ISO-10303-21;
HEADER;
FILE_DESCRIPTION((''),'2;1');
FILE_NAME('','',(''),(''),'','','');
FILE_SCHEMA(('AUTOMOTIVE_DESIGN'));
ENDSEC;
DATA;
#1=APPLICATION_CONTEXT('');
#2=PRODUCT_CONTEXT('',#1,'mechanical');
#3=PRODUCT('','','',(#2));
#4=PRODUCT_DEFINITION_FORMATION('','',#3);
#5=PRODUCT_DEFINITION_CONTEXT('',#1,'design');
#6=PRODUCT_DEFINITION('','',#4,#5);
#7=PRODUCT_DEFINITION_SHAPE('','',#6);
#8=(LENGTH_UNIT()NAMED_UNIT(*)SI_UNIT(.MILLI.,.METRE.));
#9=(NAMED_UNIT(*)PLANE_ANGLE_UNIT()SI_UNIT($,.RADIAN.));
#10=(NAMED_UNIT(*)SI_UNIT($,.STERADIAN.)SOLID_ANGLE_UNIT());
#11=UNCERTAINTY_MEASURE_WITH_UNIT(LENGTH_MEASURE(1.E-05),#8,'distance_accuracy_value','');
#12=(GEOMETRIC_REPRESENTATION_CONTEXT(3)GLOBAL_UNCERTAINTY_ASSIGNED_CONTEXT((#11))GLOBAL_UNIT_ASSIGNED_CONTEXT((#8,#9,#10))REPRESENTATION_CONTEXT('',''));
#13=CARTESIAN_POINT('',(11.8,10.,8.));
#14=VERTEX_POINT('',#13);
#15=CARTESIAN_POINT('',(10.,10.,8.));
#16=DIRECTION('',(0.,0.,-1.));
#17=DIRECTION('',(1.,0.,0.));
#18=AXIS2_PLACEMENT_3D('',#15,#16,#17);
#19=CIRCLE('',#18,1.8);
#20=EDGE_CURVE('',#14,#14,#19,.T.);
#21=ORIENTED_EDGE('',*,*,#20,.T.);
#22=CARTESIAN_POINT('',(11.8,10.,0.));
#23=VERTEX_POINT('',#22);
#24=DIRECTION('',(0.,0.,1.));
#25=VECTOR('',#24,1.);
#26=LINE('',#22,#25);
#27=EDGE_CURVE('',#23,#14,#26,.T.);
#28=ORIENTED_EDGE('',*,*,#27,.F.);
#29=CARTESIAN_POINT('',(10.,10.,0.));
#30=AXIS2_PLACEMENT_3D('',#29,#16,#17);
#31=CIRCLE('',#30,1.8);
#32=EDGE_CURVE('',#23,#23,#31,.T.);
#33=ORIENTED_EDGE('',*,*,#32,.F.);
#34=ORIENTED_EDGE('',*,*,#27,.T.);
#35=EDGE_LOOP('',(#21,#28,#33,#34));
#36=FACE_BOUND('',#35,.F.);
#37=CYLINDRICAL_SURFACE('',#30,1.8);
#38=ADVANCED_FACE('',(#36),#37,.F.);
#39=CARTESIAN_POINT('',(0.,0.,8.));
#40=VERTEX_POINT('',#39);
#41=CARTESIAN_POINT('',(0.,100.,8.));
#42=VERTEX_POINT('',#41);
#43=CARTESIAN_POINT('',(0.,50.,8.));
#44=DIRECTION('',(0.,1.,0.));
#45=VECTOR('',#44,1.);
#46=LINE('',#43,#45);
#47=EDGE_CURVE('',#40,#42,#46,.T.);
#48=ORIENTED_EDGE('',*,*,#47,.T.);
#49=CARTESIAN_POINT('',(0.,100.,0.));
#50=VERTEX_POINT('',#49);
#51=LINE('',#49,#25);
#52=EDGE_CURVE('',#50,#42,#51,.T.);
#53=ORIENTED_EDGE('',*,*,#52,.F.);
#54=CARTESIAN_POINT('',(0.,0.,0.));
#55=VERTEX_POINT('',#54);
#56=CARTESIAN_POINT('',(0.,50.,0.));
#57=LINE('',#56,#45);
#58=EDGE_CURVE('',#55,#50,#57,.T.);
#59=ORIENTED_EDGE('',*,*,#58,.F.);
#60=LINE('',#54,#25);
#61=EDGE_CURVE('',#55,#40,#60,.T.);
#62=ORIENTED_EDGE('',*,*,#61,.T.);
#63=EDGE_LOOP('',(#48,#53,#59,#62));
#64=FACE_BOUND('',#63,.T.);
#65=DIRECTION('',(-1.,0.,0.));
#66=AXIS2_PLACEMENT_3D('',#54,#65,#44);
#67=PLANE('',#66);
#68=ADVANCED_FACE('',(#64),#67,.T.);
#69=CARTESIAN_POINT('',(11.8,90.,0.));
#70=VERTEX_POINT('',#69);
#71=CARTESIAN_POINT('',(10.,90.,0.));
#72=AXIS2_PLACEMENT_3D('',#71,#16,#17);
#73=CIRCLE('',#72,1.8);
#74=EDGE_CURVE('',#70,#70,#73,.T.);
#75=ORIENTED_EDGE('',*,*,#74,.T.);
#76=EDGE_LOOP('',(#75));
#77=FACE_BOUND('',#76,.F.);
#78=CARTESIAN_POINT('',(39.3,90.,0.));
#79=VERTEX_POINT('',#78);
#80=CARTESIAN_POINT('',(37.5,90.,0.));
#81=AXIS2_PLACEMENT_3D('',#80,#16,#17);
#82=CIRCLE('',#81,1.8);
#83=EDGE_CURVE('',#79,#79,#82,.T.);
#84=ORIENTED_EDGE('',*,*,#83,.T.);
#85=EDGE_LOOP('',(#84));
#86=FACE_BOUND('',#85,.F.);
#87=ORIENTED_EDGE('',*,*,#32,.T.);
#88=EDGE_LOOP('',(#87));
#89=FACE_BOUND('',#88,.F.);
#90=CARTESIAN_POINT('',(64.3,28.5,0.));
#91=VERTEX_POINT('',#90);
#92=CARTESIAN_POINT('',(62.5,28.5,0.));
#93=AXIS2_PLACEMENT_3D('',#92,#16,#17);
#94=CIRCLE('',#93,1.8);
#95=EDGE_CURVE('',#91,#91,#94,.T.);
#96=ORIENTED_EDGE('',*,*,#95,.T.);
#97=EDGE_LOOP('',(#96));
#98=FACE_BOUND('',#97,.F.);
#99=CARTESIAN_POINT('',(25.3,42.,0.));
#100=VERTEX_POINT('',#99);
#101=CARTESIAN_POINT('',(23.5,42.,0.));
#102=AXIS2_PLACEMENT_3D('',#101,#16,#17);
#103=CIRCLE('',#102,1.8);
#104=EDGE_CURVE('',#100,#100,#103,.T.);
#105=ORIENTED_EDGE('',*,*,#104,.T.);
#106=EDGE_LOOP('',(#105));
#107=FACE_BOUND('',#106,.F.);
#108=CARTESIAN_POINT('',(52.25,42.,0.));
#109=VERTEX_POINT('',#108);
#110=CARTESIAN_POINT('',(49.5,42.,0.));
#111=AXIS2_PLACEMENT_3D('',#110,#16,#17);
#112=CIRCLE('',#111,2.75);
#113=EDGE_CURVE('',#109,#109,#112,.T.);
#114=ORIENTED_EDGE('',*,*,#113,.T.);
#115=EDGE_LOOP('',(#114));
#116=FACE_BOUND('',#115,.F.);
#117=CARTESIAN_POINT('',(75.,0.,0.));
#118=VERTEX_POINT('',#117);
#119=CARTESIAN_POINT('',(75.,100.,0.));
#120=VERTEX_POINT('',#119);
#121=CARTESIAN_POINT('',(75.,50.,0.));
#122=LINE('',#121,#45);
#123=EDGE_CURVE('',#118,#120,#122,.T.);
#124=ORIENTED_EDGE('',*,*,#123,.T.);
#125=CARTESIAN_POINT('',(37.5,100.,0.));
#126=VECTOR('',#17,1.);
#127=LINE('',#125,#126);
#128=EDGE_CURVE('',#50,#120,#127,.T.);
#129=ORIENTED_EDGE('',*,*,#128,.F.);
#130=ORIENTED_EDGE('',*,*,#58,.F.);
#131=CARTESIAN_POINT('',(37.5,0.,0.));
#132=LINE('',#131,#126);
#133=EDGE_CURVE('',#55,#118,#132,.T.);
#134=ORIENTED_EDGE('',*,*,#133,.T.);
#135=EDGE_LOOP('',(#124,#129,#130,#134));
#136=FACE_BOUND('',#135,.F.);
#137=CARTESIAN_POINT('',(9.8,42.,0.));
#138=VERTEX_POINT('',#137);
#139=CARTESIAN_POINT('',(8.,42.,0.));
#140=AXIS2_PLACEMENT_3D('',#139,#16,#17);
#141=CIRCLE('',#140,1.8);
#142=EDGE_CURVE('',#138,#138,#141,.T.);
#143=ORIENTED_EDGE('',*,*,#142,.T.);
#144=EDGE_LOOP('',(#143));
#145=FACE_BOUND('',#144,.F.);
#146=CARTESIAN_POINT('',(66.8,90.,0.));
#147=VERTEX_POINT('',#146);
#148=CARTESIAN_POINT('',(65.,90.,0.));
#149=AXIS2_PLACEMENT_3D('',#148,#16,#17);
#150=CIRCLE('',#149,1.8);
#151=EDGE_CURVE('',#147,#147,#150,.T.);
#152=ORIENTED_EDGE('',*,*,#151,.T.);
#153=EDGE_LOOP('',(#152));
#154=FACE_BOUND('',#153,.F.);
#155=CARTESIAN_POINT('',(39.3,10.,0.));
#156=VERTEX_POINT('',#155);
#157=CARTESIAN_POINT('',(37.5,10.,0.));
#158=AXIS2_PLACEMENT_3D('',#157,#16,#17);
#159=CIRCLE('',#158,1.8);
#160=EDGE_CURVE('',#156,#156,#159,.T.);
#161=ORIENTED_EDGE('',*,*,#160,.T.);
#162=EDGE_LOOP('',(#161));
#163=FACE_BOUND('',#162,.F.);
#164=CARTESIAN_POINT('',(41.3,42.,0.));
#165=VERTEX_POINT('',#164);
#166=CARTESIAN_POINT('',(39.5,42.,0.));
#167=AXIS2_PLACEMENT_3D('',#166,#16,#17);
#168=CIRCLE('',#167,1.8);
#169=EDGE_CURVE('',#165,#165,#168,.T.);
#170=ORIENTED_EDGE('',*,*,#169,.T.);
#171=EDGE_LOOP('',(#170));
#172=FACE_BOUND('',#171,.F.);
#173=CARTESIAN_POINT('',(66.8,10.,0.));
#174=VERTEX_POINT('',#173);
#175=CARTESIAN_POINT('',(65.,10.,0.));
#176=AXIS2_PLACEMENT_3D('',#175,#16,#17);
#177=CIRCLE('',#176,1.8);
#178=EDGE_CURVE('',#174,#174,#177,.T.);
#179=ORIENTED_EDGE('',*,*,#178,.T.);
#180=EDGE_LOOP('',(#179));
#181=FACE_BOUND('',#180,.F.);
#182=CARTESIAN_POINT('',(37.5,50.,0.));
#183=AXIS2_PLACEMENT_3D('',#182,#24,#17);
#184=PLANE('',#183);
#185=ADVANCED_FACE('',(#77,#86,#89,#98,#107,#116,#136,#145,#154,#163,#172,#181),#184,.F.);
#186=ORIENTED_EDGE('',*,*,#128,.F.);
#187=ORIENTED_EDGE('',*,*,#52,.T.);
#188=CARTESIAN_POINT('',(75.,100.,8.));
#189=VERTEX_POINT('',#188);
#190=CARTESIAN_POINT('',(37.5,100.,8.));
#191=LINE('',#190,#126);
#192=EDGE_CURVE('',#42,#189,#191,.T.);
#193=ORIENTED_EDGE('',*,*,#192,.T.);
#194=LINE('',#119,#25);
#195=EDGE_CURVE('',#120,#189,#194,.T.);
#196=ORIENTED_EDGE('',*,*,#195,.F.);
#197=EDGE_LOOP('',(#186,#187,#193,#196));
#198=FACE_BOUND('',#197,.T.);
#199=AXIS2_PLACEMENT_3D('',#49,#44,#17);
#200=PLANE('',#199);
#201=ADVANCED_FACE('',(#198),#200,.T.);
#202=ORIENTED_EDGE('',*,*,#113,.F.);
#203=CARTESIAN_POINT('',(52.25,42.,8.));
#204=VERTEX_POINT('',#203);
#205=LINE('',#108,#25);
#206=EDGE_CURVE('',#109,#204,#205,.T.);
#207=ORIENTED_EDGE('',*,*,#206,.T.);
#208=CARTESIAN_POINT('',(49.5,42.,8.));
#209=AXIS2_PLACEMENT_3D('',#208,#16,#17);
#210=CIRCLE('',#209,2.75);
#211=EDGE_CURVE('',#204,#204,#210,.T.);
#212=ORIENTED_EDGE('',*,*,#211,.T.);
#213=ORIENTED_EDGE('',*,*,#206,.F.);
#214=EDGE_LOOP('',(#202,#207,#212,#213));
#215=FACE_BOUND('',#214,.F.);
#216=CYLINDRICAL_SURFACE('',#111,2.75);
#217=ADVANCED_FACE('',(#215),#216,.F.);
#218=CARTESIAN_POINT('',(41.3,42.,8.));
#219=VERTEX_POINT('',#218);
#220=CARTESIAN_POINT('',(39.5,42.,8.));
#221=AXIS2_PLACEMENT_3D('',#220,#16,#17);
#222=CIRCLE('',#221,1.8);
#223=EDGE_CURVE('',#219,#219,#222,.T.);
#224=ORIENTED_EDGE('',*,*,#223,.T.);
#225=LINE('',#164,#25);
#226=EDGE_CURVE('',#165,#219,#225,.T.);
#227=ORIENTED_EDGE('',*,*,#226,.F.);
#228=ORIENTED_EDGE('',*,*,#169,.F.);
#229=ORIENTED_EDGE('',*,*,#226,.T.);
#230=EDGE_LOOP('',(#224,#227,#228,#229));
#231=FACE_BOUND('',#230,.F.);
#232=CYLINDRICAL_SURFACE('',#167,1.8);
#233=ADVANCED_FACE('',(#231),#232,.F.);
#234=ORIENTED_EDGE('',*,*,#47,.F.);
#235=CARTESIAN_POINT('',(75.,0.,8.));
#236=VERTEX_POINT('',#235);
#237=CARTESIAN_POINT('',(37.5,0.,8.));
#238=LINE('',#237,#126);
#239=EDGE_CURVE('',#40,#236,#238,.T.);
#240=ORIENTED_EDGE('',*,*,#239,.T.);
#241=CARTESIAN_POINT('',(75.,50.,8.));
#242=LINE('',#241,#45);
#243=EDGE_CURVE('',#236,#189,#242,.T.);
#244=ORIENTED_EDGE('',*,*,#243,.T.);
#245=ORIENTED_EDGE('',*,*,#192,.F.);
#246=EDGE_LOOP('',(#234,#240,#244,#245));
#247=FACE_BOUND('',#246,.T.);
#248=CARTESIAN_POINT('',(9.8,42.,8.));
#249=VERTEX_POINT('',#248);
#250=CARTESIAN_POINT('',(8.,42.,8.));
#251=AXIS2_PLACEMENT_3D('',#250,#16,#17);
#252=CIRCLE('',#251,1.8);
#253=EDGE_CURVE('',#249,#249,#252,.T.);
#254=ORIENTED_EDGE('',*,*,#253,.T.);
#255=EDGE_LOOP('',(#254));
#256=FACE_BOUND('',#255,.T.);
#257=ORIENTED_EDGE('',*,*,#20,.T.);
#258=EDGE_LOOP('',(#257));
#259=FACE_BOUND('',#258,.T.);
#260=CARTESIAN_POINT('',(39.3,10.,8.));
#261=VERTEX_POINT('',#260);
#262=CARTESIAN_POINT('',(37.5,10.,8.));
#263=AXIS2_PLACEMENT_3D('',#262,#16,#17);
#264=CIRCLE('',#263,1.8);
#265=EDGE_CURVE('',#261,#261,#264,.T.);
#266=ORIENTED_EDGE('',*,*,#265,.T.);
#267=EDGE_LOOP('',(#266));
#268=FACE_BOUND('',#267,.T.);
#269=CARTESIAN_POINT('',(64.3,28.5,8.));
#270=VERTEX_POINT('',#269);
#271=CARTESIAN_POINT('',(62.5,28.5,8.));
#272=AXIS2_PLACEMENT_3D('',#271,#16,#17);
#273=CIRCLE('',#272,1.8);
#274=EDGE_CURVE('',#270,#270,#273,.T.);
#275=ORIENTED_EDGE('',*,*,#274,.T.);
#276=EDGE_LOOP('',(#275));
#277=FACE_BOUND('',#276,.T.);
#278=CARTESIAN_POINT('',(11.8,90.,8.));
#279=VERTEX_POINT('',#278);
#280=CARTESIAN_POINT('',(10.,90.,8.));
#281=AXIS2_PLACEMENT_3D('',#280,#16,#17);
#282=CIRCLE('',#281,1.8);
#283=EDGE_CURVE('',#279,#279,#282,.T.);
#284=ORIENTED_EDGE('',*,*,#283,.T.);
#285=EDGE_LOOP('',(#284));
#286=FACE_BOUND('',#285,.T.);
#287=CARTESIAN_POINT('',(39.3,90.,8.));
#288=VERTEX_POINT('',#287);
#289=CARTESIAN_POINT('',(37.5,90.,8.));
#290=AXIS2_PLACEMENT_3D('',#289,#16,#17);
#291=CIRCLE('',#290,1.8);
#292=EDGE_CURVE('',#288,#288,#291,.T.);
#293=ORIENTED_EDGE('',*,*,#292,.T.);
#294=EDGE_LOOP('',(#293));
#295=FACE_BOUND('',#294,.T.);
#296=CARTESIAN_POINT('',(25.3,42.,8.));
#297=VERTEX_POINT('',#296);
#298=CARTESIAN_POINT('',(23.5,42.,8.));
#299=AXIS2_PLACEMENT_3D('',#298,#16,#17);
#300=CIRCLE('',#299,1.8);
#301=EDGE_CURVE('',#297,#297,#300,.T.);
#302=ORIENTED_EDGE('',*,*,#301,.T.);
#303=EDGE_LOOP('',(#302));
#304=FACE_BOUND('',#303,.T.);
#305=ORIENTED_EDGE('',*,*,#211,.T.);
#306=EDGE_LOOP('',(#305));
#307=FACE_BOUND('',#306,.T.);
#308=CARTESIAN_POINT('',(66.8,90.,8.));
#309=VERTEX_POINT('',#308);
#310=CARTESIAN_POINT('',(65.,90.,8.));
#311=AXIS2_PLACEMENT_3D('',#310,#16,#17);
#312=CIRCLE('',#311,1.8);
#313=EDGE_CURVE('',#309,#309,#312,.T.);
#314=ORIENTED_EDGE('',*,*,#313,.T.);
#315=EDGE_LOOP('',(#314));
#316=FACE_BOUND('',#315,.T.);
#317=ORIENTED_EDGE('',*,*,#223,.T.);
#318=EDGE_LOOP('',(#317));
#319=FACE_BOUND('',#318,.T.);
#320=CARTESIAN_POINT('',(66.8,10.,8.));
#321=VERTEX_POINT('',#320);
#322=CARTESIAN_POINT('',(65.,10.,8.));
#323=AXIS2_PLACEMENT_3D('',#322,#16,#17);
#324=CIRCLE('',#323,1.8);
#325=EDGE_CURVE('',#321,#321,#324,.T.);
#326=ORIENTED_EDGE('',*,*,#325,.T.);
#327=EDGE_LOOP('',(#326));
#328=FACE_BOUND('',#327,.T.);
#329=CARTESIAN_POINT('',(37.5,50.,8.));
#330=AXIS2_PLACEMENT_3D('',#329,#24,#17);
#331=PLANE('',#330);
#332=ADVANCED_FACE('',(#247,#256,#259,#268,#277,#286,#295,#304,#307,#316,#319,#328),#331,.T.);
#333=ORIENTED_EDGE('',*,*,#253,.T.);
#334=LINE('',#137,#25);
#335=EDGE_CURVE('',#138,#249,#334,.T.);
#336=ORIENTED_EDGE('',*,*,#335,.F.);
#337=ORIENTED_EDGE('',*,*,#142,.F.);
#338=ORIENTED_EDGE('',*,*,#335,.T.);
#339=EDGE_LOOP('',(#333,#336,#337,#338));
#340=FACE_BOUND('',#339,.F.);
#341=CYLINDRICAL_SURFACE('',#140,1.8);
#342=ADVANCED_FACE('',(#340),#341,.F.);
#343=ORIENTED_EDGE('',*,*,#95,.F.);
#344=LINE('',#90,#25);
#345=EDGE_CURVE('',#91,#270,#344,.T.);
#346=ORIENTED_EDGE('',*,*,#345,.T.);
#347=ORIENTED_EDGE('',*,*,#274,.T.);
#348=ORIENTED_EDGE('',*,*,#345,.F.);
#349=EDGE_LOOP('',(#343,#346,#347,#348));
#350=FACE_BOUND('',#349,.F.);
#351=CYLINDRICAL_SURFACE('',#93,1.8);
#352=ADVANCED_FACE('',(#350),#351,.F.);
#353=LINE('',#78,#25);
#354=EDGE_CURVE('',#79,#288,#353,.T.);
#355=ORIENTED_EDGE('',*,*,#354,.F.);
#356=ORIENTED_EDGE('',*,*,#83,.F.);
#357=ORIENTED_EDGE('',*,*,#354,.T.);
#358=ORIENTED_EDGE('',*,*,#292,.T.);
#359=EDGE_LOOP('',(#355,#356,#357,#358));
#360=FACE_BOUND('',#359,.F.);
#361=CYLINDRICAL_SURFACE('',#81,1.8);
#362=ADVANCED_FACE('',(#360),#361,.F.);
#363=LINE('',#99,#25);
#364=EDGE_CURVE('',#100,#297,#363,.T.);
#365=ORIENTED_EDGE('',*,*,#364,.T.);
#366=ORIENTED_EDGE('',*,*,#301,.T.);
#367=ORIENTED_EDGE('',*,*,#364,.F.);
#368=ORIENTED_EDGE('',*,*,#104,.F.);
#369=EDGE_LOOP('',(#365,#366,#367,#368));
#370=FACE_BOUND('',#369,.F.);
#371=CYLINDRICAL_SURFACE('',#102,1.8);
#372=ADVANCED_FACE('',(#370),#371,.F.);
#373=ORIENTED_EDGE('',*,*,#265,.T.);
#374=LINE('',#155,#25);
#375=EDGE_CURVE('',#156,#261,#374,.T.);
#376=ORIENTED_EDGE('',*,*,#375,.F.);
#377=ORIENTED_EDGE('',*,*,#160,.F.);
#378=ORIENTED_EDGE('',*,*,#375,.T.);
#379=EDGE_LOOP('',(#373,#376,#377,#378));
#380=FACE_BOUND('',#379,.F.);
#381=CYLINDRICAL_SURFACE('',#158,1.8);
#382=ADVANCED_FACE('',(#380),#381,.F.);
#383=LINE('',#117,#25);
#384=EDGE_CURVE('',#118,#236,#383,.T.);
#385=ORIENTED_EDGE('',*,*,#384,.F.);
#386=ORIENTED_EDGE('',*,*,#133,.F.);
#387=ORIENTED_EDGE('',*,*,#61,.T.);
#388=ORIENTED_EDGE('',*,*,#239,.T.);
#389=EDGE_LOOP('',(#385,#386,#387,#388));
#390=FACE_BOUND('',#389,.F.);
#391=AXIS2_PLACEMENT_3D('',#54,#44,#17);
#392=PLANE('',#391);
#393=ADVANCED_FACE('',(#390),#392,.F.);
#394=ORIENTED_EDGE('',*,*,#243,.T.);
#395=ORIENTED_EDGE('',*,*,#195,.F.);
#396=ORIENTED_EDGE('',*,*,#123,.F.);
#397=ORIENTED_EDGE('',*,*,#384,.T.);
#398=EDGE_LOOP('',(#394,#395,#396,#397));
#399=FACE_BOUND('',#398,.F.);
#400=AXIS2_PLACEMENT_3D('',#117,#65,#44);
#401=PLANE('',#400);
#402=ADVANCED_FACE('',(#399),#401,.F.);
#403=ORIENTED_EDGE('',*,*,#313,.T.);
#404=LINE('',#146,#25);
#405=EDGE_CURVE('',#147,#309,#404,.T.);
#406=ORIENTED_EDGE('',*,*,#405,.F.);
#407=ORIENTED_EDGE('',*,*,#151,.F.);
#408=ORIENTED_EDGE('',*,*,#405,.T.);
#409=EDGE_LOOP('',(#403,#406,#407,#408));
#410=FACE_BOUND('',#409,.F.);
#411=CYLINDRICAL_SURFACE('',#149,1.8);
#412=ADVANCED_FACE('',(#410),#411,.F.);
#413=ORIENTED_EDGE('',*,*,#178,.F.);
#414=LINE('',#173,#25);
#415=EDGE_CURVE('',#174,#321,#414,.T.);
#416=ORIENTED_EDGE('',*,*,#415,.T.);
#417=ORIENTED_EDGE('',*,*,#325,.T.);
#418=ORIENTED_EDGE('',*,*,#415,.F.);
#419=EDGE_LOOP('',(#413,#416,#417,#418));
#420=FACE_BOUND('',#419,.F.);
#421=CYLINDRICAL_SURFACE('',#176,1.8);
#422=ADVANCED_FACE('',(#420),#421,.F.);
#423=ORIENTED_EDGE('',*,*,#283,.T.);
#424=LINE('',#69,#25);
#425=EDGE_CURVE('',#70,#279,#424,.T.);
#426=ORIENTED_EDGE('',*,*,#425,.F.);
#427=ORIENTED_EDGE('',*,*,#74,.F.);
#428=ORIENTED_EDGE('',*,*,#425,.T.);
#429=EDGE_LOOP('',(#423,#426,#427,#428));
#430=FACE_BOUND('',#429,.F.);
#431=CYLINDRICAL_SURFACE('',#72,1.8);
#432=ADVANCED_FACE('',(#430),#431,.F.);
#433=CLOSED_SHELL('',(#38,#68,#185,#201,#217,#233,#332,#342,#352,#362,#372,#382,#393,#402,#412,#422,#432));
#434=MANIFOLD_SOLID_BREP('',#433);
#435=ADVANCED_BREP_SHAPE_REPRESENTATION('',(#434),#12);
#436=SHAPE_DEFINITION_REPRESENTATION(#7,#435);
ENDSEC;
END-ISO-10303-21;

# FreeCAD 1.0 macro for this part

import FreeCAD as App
import Part
import Sketcher

V = App.Vector
Q = App.Units.Quantity


def add_polygon(sketch, points):
    """Adds a closed chain of lines whose ends are joined by coincident constraints."""
    first, n = sketch.GeometryCount, len(points)
    for a, b in zip(points, points[1:] + points[:1]):
        sketch.addGeometry(Part.LineSegment(App.Vector(*a, 0), App.Vector(*b, 0)), False)
    for i in range(n):
        sketch.addConstraint(Sketcher.Constraint("Coincident", first + i, 2, first + (i + 1) % n, 1))

doc = App.newDocument("Part")
body = doc.addObject("PartDesign::Body", "Body")

# Sketch on XY plane
sketch1 = body.newObject("Sketcher::SketchObject", "Sketch")
sketch1.AttachmentSupport = (doc.getObject("XY_Plane"), [""])
sketch1.MapMode = "FlatFace"
add_polygon(sketch1, [(0, 100), (0, 0), (75, 0), (75, 100)])  # lines 0-3
sketch1.addConstraint(Sketcher.Constraint("Vertical", 0))
sketch1.addConstraint(Sketcher.Constraint("Horizontal", 1))
sketch1.addConstraint(Sketcher.Constraint("Vertical", 2))
sketch1.addConstraint(Sketcher.Constraint("Horizontal", 3))
sketch1.addConstraint(Sketcher.Constraint("Coincident", 0, 2, -1, 1))
sketch1.addConstraint(Sketcher.Constraint("DistanceX", 1, 1, 1, 2, Q("75 mm")))
sketch1.addConstraint(Sketcher.Constraint("DistanceY", 0, 2, 0, 1, Q("100 mm")))
pad1 = body.newObject("PartDesign::Pad", "Pad")
pad1.Profile = sketch1
pad1.Length = 8

# Sketch on XY plane
sketch2 = body.newObject("Sketcher::SketchObject", "Sketch001")
sketch2.AttachmentSupport = (doc.getObject("XY_Plane"), [""])
sketch2.MapMode = "FlatFace"
sketch2.addGeometry(Part.Circle(V(10, 10, 0), V(0, 0, 1), 1.8), False)
sketch2.addGeometry(Part.Circle(V(37.5, 10, 0), V(0, 0, 1), 1.8), False)
sketch2.addGeometry(Part.Circle(V(65, 10, 0), V(0, 0, 1), 1.8), False)
sketch2.addGeometry(Part.Circle(V(10, 90, 0), V(0, 0, 1), 1.8), False)
sketch2.addGeometry(Part.Circle(V(37.5, 90, 0), V(0, 0, 1), 1.8), False)
sketch2.addGeometry(Part.Circle(V(65, 90, 0), V(0, 0, 1), 1.8), False)
sketch2.addConstraint(Sketcher.Constraint("Equal", 0, 1))
sketch2.addConstraint(Sketcher.Constraint("Equal", 1, 2))
sketch2.addConstraint(Sketcher.Constraint("Equal", 2, 3))
sketch2.addConstraint(Sketcher.Constraint("Equal", 3, 4))
sketch2.addConstraint(Sketcher.Constraint("Equal", 4, 5))
sketch2.addConstraint(Sketcher.Constraint("Horizontal", 0, 3, 1, 3))
sketch2.addConstraint(Sketcher.Constraint("Horizontal", 1, 3, 2, 3))
sketch2.addConstraint(Sketcher.Constraint("Horizontal", 3, 3, 4, 3))
sketch2.addConstraint(Sketcher.Constraint("Horizontal", 4, 3, 5, 3))
sketch2.addConstraint(Sketcher.Constraint("Vertical", 0, 3, 3, 3))
sketch2.addConstraint(Sketcher.Constraint("Vertical", 1, 3, 4, 3))
sketch2.addConstraint(Sketcher.Constraint("Vertical", 2, 3, 5, 3))
sketch2.addConstraint(Sketcher.Constraint("Diameter", 0, Q("3.6 mm")))
sketch2.addConstraint(Sketcher.Constraint("DistanceX", -1, 1, 0, 3, Q("10 mm")))
sketch2.addConstraint(Sketcher.Constraint("DistanceY", -1, 1, 0, 3, Q("10 mm")))
sketch2.addConstraint(Sketcher.Constraint("DistanceX", -1, 1, 2, 3, Q("65 mm")))
sketch2.addConstraint(Sketcher.Constraint("DistanceY", -1, 1, 3, 3, Q("90 mm")))
sketch2.addConstraint(Sketcher.Constraint("DistanceX", -1, 1, 1, 3, Q("37.5 mm")))
pocket1 = body.newObject("PartDesign::Pocket", "Pocket")
pocket1.Profile = sketch2
pocket1.Type = "ThroughAll"
pocket1.Reversed = True

# Sketch on XY plane
sketch3 = body.newObject("Sketcher::SketchObject", "Sketch002")
sketch3.AttachmentSupport = (doc.getObject("XY_Plane"), [""])
sketch3.MapMode = "FlatFace"
sketch3.addGeometry(Part.Circle(V(39.5, 42, 0), V(0, 0, 1), 1.8), False)
sketch3.addGeometry(Part.Circle(V(23.5, 42, 0), V(0, 0, 1), 1.8), False)
sketch3.addGeometry(Part.Circle(V(8, 42, 0), V(0, 0, 1), 1.8), False)
sketch3.addGeometry(Part.Circle(V(62.5, 28.5, 0), V(0, 0, 1), 1.8), False)
sketch3.addConstraint(Sketcher.Constraint("Equal", 0, 1))
sketch3.addConstraint(Sketcher.Constraint("Equal", 1, 2))
sketch3.addConstraint(Sketcher.Constraint("Equal", 2, 3))
sketch3.addConstraint(Sketcher.Constraint("Horizontal", 0, 3, 1, 3))
sketch3.addConstraint(Sketcher.Constraint("Horizontal", 1, 3, 2, 3))
sketch3.addConstraint(Sketcher.Constraint("Diameter", 0, Q("3.6 mm")))
sketch3.addConstraint(Sketcher.Constraint("DistanceY", -1, 1, 0, 3, Q("42 mm")))
sketch3.addConstraint(Sketcher.Constraint("DistanceX", -1, 1, 2, 3, Q("8 mm")))
sketch3.addConstraint(Sketcher.Constraint("DistanceX", 1, 3, 0, 3, Q("16 mm")))
sketch3.addConstraint(Sketcher.Constraint("DistanceX", 0, 3, 3, 3, Q("23 mm")))
sketch3.addConstraint(Sketcher.Constraint("DistanceX", -1, 1, 0, 3, Q("39.5 mm")))
sketch3.addConstraint(Sketcher.Constraint("DistanceY", -1, 1, 3, 3, Q("28.5 mm")))
pocket2 = body.newObject("PartDesign::Pocket", "Pocket001")
pocket2.Profile = sketch3
pocket2.Length = 25
pocket2.Reversed = True

# Sketch on XY plane
sketch4 = body.newObject("Sketcher::SketchObject", "Sketch003")
sketch4.AttachmentSupport = (doc.getObject("XY_Plane"), [""])
sketch4.MapMode = "FlatFace"
sketch4.addGeometry(Part.Circle(V(49.5, 42, 0), V(0, 0, 1), 2.8), False)
sketch4.addConstraint(Sketcher.Constraint("Diameter", 0, Q("5.5 mm")))
sketch4.addConstraint(Sketcher.Constraint("DistanceY", -1, 1, 0, 3, Q("42 mm")))
sketch4.addConstraint(Sketcher.Constraint("DistanceX", -1, 1, 0, 3, Q("49.5 mm")))
pocket3 = body.newObject("PartDesign::Pocket", "Pocket002")
pocket3.Profile = sketch4
pocket3.Type = "ThroughAll"
pocket3.Reversed = True

doc.recompute()
